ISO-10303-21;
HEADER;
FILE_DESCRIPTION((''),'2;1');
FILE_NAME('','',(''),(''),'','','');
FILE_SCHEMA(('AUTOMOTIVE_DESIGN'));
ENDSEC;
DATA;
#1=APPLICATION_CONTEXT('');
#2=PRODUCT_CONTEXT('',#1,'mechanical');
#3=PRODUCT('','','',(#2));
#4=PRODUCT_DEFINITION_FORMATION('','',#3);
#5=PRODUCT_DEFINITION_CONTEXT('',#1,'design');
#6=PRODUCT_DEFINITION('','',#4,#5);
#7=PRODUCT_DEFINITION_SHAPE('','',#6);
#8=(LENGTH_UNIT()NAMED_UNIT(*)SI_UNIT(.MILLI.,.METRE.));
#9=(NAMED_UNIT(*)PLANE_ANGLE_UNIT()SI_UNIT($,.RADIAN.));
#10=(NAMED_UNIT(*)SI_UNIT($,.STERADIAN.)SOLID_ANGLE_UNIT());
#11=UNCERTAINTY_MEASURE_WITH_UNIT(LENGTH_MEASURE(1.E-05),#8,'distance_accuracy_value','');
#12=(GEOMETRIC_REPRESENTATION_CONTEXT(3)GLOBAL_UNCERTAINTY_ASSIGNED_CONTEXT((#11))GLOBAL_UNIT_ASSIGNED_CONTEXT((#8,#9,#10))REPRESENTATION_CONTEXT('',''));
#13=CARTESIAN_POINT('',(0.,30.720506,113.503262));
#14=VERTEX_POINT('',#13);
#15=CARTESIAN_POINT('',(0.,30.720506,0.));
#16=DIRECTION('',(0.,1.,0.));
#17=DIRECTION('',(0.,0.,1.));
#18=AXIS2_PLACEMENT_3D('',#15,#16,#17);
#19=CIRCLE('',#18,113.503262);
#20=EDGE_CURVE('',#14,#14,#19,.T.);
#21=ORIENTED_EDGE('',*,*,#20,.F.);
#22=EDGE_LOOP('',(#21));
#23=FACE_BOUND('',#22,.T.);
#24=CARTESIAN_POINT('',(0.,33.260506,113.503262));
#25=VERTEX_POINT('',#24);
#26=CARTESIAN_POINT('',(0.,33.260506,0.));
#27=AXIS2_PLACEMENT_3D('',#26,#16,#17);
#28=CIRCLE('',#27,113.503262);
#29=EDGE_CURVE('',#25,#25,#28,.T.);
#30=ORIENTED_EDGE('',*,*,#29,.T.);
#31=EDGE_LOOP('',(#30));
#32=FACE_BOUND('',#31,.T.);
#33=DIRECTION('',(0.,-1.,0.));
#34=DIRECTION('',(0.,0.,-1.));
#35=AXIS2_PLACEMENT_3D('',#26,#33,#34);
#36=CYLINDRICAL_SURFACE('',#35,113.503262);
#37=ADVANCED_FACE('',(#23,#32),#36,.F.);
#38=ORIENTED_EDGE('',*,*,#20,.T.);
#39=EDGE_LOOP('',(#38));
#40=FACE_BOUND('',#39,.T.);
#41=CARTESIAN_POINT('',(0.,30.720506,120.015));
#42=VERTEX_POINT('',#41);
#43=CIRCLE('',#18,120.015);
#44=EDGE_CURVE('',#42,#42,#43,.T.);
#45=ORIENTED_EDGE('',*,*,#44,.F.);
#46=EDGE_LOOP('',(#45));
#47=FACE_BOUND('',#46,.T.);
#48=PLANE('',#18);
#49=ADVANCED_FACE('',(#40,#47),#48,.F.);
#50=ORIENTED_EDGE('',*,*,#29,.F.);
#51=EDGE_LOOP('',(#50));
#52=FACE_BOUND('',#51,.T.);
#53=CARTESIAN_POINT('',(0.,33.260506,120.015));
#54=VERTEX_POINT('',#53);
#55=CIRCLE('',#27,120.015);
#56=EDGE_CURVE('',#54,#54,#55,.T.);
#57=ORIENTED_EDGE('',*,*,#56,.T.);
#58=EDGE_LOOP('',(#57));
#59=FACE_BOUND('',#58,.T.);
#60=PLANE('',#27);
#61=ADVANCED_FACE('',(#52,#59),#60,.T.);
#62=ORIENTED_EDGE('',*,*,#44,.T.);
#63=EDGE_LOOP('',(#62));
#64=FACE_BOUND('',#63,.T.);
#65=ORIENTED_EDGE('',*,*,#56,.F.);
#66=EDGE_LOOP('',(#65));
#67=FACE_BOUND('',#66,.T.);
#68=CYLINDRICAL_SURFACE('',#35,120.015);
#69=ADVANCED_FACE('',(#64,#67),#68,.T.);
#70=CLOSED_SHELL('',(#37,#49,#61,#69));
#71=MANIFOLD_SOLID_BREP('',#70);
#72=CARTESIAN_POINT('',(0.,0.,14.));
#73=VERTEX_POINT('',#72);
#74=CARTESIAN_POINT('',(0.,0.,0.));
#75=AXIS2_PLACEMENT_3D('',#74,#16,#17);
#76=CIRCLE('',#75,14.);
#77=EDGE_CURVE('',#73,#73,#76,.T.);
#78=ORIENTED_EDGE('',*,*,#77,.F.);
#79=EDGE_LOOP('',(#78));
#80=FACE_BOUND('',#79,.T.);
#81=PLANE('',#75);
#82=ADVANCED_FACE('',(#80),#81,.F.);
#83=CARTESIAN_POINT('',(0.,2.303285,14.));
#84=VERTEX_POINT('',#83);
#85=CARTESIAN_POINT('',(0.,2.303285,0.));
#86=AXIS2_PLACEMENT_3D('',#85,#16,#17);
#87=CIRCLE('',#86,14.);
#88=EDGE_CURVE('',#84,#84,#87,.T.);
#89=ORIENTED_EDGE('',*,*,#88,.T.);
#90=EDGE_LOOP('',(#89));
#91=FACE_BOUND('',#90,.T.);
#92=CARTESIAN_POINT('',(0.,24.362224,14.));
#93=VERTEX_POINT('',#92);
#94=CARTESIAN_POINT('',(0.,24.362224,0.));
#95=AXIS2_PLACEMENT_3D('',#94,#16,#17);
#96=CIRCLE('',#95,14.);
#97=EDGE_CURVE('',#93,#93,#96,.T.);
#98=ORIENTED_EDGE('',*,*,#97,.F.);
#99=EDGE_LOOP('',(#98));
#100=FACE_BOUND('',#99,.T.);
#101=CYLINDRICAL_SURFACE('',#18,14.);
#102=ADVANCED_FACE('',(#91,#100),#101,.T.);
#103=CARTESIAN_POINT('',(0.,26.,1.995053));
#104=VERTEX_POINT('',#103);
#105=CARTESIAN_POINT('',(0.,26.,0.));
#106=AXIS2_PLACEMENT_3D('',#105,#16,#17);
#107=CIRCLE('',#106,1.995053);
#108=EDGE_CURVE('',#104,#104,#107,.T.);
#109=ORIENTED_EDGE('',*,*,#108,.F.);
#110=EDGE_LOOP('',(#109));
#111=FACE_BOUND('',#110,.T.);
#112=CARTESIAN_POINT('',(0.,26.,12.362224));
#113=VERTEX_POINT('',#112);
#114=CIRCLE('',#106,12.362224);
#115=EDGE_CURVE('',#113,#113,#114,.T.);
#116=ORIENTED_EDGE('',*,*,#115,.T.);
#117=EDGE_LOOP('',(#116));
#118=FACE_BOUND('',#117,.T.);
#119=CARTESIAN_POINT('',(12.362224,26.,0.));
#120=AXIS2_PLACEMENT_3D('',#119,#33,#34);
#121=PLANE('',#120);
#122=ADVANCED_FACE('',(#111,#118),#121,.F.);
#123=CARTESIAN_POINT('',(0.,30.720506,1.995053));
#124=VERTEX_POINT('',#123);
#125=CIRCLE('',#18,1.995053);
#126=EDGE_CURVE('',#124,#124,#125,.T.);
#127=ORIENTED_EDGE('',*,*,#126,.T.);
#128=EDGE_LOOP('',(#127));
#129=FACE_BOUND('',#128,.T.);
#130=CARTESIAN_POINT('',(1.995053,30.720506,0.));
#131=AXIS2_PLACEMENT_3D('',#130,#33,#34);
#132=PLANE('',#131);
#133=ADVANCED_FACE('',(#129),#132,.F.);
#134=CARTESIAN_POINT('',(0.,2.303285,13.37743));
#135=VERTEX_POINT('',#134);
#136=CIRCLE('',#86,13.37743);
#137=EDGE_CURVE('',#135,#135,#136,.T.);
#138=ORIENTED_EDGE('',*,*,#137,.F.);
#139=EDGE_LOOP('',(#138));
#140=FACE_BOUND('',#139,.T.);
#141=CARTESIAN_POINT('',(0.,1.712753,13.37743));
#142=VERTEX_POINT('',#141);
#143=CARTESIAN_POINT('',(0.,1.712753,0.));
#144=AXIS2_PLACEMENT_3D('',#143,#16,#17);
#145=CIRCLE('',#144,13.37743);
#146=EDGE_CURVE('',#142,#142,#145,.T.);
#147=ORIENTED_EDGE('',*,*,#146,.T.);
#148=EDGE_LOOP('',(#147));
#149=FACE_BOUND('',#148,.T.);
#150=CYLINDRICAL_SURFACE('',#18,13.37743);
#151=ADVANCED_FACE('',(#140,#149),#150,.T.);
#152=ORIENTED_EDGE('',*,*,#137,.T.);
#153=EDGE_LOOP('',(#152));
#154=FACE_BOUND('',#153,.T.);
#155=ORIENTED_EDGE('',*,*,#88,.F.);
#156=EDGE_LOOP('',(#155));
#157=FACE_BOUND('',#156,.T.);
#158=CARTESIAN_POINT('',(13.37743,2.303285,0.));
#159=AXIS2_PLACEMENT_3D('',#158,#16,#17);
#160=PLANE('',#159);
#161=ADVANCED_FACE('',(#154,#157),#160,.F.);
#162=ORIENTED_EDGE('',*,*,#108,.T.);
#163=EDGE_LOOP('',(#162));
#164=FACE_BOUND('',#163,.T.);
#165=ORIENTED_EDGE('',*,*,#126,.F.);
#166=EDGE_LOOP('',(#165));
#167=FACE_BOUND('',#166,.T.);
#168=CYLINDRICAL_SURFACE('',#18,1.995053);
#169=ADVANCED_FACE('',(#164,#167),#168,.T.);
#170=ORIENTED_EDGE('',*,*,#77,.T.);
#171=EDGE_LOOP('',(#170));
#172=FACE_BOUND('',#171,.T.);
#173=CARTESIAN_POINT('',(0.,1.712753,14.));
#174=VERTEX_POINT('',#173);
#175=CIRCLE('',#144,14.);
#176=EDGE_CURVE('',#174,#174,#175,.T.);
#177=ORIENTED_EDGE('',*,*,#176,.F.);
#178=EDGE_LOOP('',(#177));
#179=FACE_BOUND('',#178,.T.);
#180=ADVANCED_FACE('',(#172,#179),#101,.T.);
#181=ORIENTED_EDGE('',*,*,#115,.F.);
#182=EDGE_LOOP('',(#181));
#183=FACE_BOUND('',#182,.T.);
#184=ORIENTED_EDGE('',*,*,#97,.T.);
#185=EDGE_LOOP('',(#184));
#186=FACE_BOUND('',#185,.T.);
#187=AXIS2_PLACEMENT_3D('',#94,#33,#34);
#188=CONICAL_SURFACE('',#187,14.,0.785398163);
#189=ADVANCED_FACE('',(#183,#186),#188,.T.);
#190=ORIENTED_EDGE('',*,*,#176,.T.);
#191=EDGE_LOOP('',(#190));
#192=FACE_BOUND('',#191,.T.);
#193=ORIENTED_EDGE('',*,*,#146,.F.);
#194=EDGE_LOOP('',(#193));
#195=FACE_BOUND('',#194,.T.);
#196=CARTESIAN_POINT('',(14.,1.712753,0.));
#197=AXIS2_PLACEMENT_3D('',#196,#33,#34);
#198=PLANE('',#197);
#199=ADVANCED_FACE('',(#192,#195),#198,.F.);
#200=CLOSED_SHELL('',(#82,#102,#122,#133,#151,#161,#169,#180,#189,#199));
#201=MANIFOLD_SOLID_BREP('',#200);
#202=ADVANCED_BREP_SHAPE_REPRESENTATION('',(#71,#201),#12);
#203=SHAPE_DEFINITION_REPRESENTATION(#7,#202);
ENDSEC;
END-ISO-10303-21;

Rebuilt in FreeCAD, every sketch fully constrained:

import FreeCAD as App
import Part
import Sketcher
from FreeCAD import Vector
Q = App.Units.Quantity

doc = App.newDocument("Part")
body = doc.addObject("PartDesign::Body", "Body")

sketch1 = doc.addObject("Sketcher::SketchObject", "Sketch")
body.addObject(sketch1)
sketch1.AttachmentSupport = (doc.XY_Plane, [""])
sketch1.MapMode = "FlatFace"
sketch1.addGeometry([
    Part.LineSegment(Vector(0, 0, 0), Vector(14, 0, 0)),
    Part.LineSegment(Vector(14, 0, 0), Vector(14, 1.712753, 0)),
    Part.LineSegment(Vector(14, 1.712753, 0), Vector(13.37743, 1.712753, 0)),
    Part.LineSegment(Vector(13.37743, 1.712753, 0), Vector(13.37743, 2.303285, 0)),
    Part.LineSegment(Vector(13.37743, 2.303285, 0), Vector(14, 2.303285, 0)),
    Part.LineSegment(Vector(14, 2.303285, 0), Vector(14, 24.362224, 0)),
    Part.LineSegment(Vector(14, 24.362224, 0), Vector(12.362224, 26, 0)),
    Part.LineSegment(Vector(12.362224, 26, 0), Vector(1.995053, 26, 0)),
    Part.LineSegment(Vector(1.995053, 26, 0), Vector(1.995053, 30.720506, 0)),
    Part.LineSegment(Vector(1.995053, 30.720506, 0), Vector(0, 30.720506, 0)),
    Part.LineSegment(Vector(0, 30.720506, 0), Vector(0, 0, 0)),
], False)
sketch1.addConstraint([
    Sketcher.Constraint("Coincident", 0, 2, 1, 1),
    Sketcher.Constraint("Coincident", 1, 2, 2, 1),
    Sketcher.Constraint("Coincident", 2, 2, 3, 1),
    Sketcher.Constraint("Coincident", 3, 2, 4, 1),
    Sketcher.Constraint("Coincident", 4, 2, 5, 1),
    Sketcher.Constraint("Coincident", 5, 2, 6, 1),
    Sketcher.Constraint("Coincident", 6, 2, 7, 1),
    Sketcher.Constraint("Coincident", 7, 2, 8, 1),
    Sketcher.Constraint("Coincident", 8, 2, 9, 1),
    Sketcher.Constraint("Coincident", 9, 2, 10, 1),
    Sketcher.Constraint("Coincident", 10, 2, 0, 1),
    Sketcher.Constraint("Horizontal", 0),
    Sketcher.Constraint("Vertical", 1),
    Sketcher.Constraint("Horizontal", 2),
    Sketcher.Constraint("Vertical", 3),
    Sketcher.Constraint("Horizontal", 4),
    Sketcher.Constraint("Vertical", 5),
    Sketcher.Constraint("Horizontal", 7),
    Sketcher.Constraint("Vertical", 8),
    Sketcher.Constraint("Horizontal", 9),
    Sketcher.Constraint("Vertical", 10),
    Sketcher.Constraint("Coincident", 10, 2, -1, 1),
    Sketcher.Constraint("Vertical", 1, 2, 4, 2),
    Sketcher.Constraint("Angle", 6, Q("135 deg")),
    Sketcher.Constraint("DistanceX", 0, 1, 0, 2, 14.0),
    Sketcher.Constraint("DistanceX", 2, 2, 2, 1, 0.62257),
    Sketcher.Constraint("DistanceX", 7, 2, 7, 1, 10.367172),
    Sketcher.Constraint("DistanceY", 3, 1, 3, 2, 0.590532),
    Sketcher.Constraint("DistanceY", 5, 1, 5, 2, 22.05894),
    Sketcher.Constraint("DistanceY", -1, 1, 6, 2, 26.0),
    Sketcher.Constraint("DistanceX", 9, 2, 9, 1, 1.995053),
    Sketcher.Constraint("DistanceY", 8, 1, 8, 2, 4.720506),
])
revolution = doc.addObject("PartDesign::Revolution", "Revolution")
body.addObject(revolution)
revolution.Profile = sketch1
revolution.ReferenceAxis = (sketch1, ["V_Axis"])
revolution.Angle = 360
body2 = doc.addObject("PartDesign::Body", "Body001")

sketch2 = doc.addObject("Sketcher::SketchObject", "Sketch001")
body2.addObject(sketch2)
sketch2.AttachmentSupport = (doc.getObject("XZ_Plane001"), [""])
sketch2.MapMode = "FlatFace"
sketch2.AttachmentOffset = App.Placement(Vector(0, 0, -30.720506), App.Rotation())
sketch2.addGeometry([
    Part.Circle(Vector(0, 0, 0), Vector(0, 0, 1), 120.015),
    Part.Circle(Vector(0, 0, 0), Vector(0, 0, 1), 113.503262),
], False)
sketch2.addConstraint([
    Sketcher.Constraint("Coincident", 0, 3, -1, 1),
    Sketcher.Constraint("Coincident", 1, 3, -1, 1),
    Sketcher.Constraint("Diameter", 0, Q("9.45 in")),
    Sketcher.Constraint("Diameter", 1, 227.006524),
])
pad1 = doc.addObject("PartDesign::Pad", "Pad")
body2.addObject(pad1)
pad1.Profile = sketch2
pad1.Length = Q("0.1 in")
pad1.Reversed = True

doc.recompute()
